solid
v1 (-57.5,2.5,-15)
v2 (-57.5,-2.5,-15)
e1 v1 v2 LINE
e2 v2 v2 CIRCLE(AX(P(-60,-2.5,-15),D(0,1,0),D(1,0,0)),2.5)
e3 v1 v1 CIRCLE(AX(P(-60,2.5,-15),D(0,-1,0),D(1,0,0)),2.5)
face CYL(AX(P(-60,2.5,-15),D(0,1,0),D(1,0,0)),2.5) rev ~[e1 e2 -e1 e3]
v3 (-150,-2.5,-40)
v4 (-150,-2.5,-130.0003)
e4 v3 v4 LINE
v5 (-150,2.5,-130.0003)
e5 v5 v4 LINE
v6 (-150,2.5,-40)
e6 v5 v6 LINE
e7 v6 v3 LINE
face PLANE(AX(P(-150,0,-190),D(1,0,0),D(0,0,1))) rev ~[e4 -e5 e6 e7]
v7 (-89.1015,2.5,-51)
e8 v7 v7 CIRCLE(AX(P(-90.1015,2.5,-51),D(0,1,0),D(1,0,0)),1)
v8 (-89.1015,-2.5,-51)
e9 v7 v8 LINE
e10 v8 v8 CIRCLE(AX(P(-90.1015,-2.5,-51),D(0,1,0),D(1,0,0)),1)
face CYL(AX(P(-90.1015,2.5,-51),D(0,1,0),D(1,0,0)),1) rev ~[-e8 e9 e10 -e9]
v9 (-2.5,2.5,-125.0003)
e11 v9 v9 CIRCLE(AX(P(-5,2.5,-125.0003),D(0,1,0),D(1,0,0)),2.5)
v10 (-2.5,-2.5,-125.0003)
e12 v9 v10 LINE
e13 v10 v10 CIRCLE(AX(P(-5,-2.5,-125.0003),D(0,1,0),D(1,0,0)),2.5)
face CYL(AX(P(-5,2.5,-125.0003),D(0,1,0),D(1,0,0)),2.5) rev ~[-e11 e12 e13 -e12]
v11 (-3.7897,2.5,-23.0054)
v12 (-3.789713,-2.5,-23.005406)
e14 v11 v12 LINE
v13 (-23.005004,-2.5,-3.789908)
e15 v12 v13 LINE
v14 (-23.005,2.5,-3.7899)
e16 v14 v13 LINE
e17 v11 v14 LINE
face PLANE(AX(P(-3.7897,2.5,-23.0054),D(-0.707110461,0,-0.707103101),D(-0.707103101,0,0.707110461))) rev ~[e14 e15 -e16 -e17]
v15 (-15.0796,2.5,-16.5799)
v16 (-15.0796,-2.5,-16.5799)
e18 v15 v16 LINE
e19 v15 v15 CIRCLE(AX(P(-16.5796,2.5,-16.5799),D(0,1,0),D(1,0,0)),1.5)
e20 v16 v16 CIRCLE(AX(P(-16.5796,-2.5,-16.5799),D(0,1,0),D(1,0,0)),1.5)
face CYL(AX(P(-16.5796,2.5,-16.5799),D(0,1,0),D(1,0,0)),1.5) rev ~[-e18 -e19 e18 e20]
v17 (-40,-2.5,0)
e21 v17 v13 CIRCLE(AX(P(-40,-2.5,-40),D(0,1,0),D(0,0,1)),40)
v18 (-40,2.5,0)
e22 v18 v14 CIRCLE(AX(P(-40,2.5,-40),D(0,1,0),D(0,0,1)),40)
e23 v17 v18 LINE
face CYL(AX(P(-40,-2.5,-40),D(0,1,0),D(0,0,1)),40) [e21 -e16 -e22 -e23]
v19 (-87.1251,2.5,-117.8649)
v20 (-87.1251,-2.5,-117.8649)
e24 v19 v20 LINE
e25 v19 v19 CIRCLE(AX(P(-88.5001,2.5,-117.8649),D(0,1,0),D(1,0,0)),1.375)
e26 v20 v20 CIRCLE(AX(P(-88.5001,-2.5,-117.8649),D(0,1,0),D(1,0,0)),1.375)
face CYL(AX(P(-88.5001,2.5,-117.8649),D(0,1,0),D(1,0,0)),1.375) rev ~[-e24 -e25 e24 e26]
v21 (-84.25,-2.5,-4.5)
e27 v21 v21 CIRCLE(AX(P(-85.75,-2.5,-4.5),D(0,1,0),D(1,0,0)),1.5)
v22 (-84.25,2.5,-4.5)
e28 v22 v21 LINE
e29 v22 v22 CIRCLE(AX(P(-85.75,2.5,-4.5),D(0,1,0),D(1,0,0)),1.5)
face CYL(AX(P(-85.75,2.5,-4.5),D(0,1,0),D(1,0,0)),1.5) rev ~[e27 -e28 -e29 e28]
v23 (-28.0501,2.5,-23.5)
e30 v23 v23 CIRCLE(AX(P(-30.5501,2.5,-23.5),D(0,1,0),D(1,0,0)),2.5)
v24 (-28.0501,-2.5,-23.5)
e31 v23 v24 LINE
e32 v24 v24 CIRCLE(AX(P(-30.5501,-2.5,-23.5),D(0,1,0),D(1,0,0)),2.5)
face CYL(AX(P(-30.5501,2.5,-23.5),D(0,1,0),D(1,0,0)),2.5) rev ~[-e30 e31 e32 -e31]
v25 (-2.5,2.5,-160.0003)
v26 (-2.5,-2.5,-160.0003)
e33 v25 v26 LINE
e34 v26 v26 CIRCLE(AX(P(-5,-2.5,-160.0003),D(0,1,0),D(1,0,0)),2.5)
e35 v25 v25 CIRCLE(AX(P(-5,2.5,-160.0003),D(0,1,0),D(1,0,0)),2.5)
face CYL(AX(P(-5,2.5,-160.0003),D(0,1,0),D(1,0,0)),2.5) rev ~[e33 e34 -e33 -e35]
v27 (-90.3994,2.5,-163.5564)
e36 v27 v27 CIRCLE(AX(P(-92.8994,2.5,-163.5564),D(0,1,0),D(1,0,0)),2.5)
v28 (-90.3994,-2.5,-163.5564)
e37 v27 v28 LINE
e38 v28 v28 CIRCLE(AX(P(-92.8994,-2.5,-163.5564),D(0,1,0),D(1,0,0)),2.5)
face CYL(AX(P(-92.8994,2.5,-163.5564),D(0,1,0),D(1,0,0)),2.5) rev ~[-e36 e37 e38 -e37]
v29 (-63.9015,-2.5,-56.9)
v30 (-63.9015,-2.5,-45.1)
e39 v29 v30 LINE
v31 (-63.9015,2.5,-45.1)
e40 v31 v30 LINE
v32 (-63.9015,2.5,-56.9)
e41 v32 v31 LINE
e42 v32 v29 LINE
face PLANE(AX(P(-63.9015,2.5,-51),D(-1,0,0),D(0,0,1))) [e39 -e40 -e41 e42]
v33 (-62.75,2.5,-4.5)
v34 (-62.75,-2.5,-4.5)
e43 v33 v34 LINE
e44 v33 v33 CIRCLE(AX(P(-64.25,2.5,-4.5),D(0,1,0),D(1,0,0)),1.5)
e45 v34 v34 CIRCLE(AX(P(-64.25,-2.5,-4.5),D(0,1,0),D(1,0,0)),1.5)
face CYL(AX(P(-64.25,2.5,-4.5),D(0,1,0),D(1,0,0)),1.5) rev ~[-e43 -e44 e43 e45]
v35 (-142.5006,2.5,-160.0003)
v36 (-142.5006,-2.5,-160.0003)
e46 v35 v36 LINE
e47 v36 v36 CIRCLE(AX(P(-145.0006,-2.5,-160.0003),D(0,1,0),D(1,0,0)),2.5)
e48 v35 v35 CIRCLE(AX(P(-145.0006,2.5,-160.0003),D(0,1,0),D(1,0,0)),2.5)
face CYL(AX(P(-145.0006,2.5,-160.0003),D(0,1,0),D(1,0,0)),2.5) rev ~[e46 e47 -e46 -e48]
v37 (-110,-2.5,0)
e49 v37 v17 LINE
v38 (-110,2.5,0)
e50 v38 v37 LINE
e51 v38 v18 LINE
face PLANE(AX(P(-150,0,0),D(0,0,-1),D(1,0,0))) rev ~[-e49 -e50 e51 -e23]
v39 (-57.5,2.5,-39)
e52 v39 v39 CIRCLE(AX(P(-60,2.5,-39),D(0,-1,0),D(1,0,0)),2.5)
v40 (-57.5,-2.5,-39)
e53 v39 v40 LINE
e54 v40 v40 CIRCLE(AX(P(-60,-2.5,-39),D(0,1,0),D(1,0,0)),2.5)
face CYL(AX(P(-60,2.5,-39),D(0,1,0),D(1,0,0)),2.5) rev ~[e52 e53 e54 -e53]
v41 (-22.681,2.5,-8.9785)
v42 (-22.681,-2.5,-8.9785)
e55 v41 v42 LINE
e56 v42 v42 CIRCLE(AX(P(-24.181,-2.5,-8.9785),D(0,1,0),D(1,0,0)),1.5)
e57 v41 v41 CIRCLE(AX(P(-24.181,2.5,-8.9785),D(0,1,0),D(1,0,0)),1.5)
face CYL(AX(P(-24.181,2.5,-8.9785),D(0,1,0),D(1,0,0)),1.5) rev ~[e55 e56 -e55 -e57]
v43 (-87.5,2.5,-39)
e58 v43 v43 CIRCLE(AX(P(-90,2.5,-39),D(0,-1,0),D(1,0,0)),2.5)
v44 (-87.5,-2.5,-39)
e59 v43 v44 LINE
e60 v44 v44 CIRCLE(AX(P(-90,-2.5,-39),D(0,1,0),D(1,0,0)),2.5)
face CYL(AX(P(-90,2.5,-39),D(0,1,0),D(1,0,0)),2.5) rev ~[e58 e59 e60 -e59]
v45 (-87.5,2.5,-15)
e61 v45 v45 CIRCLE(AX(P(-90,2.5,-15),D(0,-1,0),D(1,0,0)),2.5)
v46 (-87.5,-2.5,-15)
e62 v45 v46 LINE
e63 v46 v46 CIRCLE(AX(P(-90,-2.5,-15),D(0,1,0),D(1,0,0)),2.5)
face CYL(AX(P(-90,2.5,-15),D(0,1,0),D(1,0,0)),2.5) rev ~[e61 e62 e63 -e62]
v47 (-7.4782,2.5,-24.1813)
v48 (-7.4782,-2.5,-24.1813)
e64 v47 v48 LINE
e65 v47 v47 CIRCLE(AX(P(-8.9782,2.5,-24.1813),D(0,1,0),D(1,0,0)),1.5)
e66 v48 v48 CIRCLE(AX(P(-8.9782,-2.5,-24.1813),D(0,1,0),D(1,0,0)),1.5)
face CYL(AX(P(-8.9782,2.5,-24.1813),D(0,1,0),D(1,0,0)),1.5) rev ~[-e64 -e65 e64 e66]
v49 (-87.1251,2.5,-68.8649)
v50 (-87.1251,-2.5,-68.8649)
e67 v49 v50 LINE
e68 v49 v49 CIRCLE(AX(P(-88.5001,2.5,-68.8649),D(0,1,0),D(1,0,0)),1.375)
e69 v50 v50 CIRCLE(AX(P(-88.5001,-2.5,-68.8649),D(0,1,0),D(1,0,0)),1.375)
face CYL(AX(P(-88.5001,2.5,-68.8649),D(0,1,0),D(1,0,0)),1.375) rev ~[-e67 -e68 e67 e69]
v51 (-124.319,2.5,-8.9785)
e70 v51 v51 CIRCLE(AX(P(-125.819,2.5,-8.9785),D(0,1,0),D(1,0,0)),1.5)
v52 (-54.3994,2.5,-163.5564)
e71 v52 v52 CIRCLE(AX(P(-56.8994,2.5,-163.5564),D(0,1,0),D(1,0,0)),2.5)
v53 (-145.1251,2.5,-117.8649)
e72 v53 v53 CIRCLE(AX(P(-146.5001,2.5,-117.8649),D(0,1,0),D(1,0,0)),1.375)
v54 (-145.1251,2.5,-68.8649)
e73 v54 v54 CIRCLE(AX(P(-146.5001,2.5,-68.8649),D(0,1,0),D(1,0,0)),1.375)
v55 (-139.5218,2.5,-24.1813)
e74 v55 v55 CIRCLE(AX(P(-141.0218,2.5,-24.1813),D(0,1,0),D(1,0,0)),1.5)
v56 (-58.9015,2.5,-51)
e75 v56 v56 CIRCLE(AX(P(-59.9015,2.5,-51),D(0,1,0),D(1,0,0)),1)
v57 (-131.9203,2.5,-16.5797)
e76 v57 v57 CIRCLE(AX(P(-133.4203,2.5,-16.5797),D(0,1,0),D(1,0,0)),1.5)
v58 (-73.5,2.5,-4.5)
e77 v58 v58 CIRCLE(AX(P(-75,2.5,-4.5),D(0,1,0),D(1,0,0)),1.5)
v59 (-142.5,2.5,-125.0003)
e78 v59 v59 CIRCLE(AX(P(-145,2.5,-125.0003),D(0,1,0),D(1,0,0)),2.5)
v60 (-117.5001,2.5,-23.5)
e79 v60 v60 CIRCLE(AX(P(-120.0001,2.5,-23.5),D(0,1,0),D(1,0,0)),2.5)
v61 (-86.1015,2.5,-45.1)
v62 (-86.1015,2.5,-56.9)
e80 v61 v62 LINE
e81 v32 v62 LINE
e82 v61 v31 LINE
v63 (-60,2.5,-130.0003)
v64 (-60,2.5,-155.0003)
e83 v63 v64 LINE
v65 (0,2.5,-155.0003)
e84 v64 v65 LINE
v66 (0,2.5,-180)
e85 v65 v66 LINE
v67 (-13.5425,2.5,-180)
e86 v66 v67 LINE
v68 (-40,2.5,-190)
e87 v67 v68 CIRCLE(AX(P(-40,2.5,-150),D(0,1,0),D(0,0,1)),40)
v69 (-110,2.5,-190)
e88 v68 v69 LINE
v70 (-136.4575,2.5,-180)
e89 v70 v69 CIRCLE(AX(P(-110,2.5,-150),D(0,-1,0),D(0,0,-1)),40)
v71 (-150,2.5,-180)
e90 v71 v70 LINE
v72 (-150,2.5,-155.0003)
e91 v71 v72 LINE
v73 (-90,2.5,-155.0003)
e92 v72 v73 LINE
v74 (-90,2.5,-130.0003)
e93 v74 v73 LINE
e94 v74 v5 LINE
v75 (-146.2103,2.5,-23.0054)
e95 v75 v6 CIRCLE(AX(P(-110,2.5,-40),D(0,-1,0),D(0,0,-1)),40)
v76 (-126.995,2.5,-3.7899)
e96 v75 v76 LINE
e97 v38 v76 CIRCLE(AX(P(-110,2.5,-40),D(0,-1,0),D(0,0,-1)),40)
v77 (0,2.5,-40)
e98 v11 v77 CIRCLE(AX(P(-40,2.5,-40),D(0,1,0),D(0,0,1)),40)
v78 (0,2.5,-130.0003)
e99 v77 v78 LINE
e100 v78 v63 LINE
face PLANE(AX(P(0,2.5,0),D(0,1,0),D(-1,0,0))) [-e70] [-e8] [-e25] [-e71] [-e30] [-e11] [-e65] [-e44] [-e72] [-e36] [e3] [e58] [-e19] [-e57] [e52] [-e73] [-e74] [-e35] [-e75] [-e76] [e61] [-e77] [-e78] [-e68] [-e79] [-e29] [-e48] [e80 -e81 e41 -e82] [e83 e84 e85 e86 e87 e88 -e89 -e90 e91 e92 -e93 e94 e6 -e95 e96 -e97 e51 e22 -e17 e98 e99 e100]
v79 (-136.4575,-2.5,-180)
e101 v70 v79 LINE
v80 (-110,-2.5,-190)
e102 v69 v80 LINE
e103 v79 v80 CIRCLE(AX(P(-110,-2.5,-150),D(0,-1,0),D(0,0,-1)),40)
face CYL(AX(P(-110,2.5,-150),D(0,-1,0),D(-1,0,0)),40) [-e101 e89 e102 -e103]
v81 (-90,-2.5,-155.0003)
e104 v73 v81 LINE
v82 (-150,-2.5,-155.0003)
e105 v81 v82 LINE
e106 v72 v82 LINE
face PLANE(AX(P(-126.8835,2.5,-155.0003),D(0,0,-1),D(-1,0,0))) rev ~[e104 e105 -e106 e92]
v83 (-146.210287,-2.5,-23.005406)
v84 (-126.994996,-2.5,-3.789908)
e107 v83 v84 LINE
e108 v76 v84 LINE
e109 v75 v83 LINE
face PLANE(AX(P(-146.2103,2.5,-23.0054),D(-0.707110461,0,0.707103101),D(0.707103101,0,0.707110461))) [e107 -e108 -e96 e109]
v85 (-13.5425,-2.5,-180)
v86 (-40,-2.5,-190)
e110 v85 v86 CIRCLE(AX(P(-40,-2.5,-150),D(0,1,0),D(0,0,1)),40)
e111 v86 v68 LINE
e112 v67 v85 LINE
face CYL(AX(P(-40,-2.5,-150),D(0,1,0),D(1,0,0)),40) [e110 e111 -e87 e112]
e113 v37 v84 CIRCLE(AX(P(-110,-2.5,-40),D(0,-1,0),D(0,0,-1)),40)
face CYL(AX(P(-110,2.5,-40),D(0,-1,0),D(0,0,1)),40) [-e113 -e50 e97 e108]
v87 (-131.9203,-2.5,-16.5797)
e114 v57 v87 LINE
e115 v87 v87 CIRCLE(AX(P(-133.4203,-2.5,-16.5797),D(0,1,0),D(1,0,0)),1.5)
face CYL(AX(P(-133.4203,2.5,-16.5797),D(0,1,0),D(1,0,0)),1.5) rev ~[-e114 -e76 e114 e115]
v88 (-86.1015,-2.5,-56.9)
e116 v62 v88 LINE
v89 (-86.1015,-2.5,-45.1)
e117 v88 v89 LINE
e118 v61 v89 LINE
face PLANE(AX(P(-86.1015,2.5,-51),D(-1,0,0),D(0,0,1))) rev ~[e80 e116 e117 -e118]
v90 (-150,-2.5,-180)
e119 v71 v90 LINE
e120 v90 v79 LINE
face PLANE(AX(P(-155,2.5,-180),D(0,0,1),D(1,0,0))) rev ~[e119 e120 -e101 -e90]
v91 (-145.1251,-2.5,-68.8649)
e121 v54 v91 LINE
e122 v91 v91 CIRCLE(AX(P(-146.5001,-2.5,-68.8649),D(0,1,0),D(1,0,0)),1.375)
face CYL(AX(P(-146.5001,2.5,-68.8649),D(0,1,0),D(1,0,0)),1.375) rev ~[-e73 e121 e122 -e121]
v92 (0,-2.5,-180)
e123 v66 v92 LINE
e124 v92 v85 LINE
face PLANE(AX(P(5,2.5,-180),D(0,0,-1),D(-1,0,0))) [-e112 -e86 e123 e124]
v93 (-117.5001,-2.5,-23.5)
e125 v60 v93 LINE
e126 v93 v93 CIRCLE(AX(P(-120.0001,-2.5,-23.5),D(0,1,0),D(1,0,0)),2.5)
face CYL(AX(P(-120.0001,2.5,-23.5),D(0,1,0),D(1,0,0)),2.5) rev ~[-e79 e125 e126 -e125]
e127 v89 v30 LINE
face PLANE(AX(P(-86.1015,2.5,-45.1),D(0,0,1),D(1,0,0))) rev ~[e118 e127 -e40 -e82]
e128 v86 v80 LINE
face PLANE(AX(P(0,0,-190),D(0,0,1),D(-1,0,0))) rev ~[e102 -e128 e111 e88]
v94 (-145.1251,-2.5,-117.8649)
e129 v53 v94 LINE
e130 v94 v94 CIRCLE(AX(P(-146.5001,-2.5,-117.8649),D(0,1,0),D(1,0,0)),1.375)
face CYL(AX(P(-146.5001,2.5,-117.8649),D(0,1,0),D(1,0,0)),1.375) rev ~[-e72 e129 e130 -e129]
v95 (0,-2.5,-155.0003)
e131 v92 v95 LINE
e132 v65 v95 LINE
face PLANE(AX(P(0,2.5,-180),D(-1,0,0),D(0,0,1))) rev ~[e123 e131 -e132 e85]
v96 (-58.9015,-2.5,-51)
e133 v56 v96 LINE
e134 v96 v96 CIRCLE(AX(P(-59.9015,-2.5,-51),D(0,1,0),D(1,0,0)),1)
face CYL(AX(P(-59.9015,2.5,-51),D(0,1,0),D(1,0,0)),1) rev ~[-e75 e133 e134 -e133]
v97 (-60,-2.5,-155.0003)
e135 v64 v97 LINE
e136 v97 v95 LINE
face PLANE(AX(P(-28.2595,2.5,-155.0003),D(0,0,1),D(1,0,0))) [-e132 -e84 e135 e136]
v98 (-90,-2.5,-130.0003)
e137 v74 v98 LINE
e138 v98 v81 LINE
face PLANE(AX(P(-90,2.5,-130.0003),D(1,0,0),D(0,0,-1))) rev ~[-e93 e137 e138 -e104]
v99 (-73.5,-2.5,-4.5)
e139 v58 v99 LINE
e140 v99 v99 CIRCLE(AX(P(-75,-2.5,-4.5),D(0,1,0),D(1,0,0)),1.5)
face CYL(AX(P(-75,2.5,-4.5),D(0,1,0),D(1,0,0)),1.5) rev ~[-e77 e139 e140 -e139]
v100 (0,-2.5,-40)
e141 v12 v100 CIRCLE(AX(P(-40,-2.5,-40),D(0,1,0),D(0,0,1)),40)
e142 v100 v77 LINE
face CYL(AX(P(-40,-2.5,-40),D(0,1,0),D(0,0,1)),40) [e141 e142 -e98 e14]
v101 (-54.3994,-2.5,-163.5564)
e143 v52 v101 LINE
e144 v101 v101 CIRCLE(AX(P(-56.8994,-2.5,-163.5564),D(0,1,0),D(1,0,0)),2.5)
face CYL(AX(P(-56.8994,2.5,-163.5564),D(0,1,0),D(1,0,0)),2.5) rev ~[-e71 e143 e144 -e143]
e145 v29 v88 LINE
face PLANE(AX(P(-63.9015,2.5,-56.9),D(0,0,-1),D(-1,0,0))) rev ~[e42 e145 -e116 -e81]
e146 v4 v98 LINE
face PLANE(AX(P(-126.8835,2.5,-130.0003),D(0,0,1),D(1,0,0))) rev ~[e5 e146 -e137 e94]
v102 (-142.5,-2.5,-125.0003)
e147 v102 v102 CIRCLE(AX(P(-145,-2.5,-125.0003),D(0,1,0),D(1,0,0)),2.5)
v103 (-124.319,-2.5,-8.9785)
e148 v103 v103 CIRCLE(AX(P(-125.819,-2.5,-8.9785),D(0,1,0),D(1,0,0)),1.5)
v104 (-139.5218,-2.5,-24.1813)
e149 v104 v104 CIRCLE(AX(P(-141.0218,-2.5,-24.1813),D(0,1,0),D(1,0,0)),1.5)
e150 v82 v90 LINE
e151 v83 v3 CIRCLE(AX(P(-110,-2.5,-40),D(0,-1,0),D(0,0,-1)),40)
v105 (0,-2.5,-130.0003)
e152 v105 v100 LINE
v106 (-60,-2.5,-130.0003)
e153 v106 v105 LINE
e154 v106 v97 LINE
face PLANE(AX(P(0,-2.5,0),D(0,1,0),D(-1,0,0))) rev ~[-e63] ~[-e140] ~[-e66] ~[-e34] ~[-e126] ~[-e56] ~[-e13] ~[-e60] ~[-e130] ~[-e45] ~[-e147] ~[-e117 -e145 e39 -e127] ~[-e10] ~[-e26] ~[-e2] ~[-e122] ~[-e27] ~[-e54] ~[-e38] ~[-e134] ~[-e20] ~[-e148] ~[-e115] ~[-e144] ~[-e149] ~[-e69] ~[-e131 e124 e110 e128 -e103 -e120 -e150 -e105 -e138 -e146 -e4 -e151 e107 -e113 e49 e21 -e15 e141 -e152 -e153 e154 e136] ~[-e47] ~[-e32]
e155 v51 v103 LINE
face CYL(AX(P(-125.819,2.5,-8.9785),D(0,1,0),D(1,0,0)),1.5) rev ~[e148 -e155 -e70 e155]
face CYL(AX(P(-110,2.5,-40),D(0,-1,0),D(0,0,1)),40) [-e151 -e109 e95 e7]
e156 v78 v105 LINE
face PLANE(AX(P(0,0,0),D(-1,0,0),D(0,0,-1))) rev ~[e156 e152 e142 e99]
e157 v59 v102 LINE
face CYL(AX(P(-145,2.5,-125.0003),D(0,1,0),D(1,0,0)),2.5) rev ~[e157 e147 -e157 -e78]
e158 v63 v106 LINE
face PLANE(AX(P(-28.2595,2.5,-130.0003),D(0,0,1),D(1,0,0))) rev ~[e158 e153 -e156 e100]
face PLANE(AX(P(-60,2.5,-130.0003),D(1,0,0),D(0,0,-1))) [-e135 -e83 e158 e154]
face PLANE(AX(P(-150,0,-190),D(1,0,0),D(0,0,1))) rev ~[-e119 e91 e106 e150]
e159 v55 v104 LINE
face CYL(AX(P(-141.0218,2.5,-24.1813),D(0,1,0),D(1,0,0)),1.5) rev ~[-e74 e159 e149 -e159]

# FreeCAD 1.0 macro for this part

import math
import FreeCAD as App
import Part
import Sketcher
from FreeCAD import Vector


def edges_at(feature, points):
    """Names of the edges that pass closest to the given points."""
    edges = feature.Shape.Edges
    near = lambda p: min(range(len(edges)), key=lambda i: edges[i].distToShape(Part.Vertex(*p))[0])
    return sorted({f"Edge{near(p) + 1}" for p in points})

doc = App.newDocument("Part")
body = doc.addObject("PartDesign::Body", "Body")

sketch1 = doc.addObject("Sketcher::SketchObject", "Sketch")
body.addObject(sketch1)
sketch1.AttachmentSupport = (doc.XZ_Plane, [""])
sketch1.MapMode = "FlatFace"
sketch1.addGeometry(Part.LineSegment(Vector(-150, 0, 0), Vector(0, 0, 0)), False)
sketch1.addGeometry(Part.LineSegment(Vector(0, 0, 0), Vector(0, -190, 0)), False)
sketch1.addGeometry(Part.LineSegment(Vector(0, -190, 0), Vector(-150, -190, 0)), False)
sketch1.addGeometry(Part.LineSegment(Vector(-150, -190, 0), Vector(-150, 0, 0)), False)
sketch1.addConstraint(Sketcher.Constraint("Coincident", 0, 2, 1, 1))
sketch1.addConstraint(Sketcher.Constraint("Coincident", 1, 2, 2, 1))
sketch1.addConstraint(Sketcher.Constraint("Coincident", 2, 2, 3, 1))
sketch1.addConstraint(Sketcher.Constraint("Coincident", 3, 2, 0, 1))
sketch1.addConstraint(Sketcher.Constraint("Horizontal", 0))
sketch1.addConstraint(Sketcher.Constraint("Vertical", 1))
sketch1.addConstraint(Sketcher.Constraint("Horizontal", 2))
sketch1.addConstraint(Sketcher.Constraint("Vertical", 3))
sketch1.addConstraint(Sketcher.Constraint("Coincident", 0, 2, -1, 1))
sketch1.addConstraint(Sketcher.Constraint("DistanceX", 0, 1, 0, 2, 150.0))
sketch1.addConstraint(Sketcher.Constraint("DistanceY", 1, 2, 1, 1, 190.0))
pad1 = doc.addObject("PartDesign::Pad", "Pad")
body.addObject(pad1)
pad1.Profile = sketch1
pad1.Length = 5
pad1.Midplane = True
doc.recompute()

fillet = doc.addObject("PartDesign::Fillet", "Fillet")
body.addObject(fillet)
fillet.Base = (pad1, edges_at(pad1, [(0, 0, 0)]))
fillet.Radius = 40
doc.recompute()

fillet2 = doc.addObject("PartDesign::Fillet", "Fillet001")
body.addObject(fillet2)
fillet2.Base = (fillet, edges_at(fillet, [(-150, 0, 0), (0, 0, -190), (-150, 0, -190)]))
fillet2.Radius = 40

sketch2 = doc.addObject("Sketcher::SketchObject", "Sketch001")
body.addObject(sketch2)
sketch2.AttachmentSupport = (doc.XZ_Plane, [""])
sketch2.MapMode = "FlatFace"
sketch2.AttachmentOffset = App.Placement(Vector(0, 0, -2.5), App.Rotation())
sketch2.addGeometry(Part.Circle(Vector(-120, -23.5, 0), Vector(0, 0, 1), 2.5), False)
sketch2.addGeometry(Part.Circle(Vector(-30.6, -23.5, 0), Vector(0, 0, 1), 2.5), False)
sketch2.addGeometry(Part.Circle(Vector(-92.9, -163.6, 0), Vector(0, 0, 1), 2.5), False)
sketch2.addGeometry(Part.Circle(Vector(-56.9, -163.6, 0), Vector(0, 0, 1), 2.5), False)
sketch2.addConstraint(Sketcher.Constraint("Equal", 0, 1))
sketch2.addConstraint(Sketcher.Constraint("Equal", 1, 2))
sketch2.addConstraint(Sketcher.Constraint("Equal", 2, 3))
sketch2.addConstraint(Sketcher.Constraint("Horizontal", 0, 3, 1, 3))
sketch2.addConstraint(Sketcher.Constraint("Horizontal", 2, 3, 3, 3))
sketch2.addConstraint(Sketcher.Constraint("Diameter", 0, 5.0))
sketch2.addConstraint(Sketcher.Constraint("DistanceX", 0, 3, -1, 1, 120.0))
sketch2.addConstraint(Sketcher.Constraint("DistanceX", 2, 3, 3, 3, 36.0))
sketch2.addConstraint(Sketcher.Constraint("DistanceY", 0, 3, -1, 1, 23.5))
sketch2.addConstraint(Sketcher.Constraint("DistanceX", 1, 3, -1, 1, 30.55))
sketch2.addConstraint(Sketcher.Constraint("DistanceX", 2, 3, -1, 1, 92.8994))
sketch2.addConstraint(Sketcher.Constraint("DistanceY", 2, 3, -1, 1, 163.5564))
pocket1 = doc.addObject("PartDesign::Pocket", "Pocket")
body.addObject(pocket1)
pocket1.Profile = sketch2
pocket1.Type = "ThroughAll"
pocket1.Reversed = True

sketch3 = doc.addObject("Sketcher::SketchObject", "Sketch002")
body.addObject(sketch3)
sketch3.AttachmentSupport = (doc.XZ_Plane, [""])
sketch3.MapMode = "FlatFace"
sketch3.AttachmentOffset = App.Placement(Vector(0, 0, -2.5), App.Rotation())
sketch3.addGeometry(Part.LineSegment(Vector(-150, -175, 0), Vector(-150, -150, 0)), False)
sketch3.addGeometry(Part.ArcOfCircle(Part.Circle(Vector(-110, -150, 0), Vector(0, 0, 1), 40), math.radians(180), math.radians(229)), False)
sketch3.addGeometry(Part.LineSegment(Vector(-136, -180, 0), Vector(-155, -180, 0)), False)
sketch3.addGeometry(Part.LineSegment(Vector(-155, -180, 0), Vector(-155, -175, 0)), False)
sketch3.addGeometry(Part.LineSegment(Vector(-155, -175, 0), Vector(-150, -175, 0)), False)
sketch3.addGeometry(Part.LineSegment(Vector(-150, -105, 0), Vector(-150, -110, 0)), False)
sketch3.addGeometry(Part.LineSegment(Vector(-150, -110, 0), Vector(-155, -110, 0)), False)
sketch3.addGeometry(Part.LineSegment(Vector(-155, -110, 0), Vector(-155, -105, 0)), False)
sketch3.addGeometry(Part.LineSegment(Vector(-155, -105, 0), Vector(-150, -105, 0)), False)
sketch3.addGeometry(Part.LineSegment(Vector(0, -110, 0), Vector(0, -105, 0)), False)
sketch3.addGeometry(Part.LineSegment(Vector(0, -105, 0), Vector(5, -105, 0)), False)
sketch3.addGeometry(Part.LineSegment(Vector(5, -105, 0), Vector(5, -110, 0)), False)
sketch3.addGeometry(Part.LineSegment(Vector(5, -110, 0), Vector(0, -110, 0)), False)
sketch3.addGeometry(Part.LineSegment(Vector(0, -150, 0), Vector(0, -175, 0)), False)
sketch3.addGeometry(Part.LineSegment(Vector(0, -175, 0), Vector(5, -175, 0)), False)
sketch3.addGeometry(Part.LineSegment(Vector(5, -175, 0), Vector(5, -180, 0)), False)
sketch3.addGeometry(Part.LineSegment(Vector(5, -180, 0), Vector(-14, -180, 0)), False)
sketch3.addGeometry(Part.ArcOfCircle(Part.Circle(Vector(-40, -150, 0), Vector(0, 0, 1), 40), math.radians(-49), math.radians(0)), False)
sketch3.addConstraint(Sketcher.Constraint("Tangent", 0, 2, 1, 1))
sketch3.addConstraint(Sketcher.Constraint("Coincident", 1, 2, 2, 1))
sketch3.addConstraint(Sketcher.Constraint("Coincident", 2, 2, 3, 1))
sketch3.addConstraint(Sketcher.Constraint("Coincident", 3, 2, 4, 1))
sketch3.addConstraint(Sketcher.Constraint("Coincident", 4, 2, 0, 1))
sketch3.addConstraint(Sketcher.Constraint("Coincident", 5, 2, 6, 1))
sketch3.addConstraint(Sketcher.Constraint("Coincident", 6, 2, 7, 1))
sketch3.addConstraint(Sketcher.Constraint("Coincident", 7, 2, 8, 1))
sketch3.addConstraint(Sketcher.Constraint("Coincident", 8, 2, 5, 1))
sketch3.addConstraint(Sketcher.Constraint("Coincident", 9, 2, 10, 1))
sketch3.addConstraint(Sketcher.Constraint("Coincident", 10, 2, 11, 1))
sketch3.addConstraint(Sketcher.Constraint("Coincident", 11, 2, 12, 1))
sketch3.addConstraint(Sketcher.Constraint("Coincident", 12, 2, 9, 1))
sketch3.addConstraint(Sketcher.Constraint("Coincident", 13, 2, 14, 1))
sketch3.addConstraint(Sketcher.Constraint("Coincident", 14, 2, 15, 1))
sketch3.addConstraint(Sketcher.Constraint("Coincident", 15, 2, 16, 1))
sketch3.addConstraint(Sketcher.Constraint("Coincident", 16, 2, 17, 1))
sketch3.addConstraint(Sketcher.Constraint("Tangent", 17, 2, 13, 1))
sketch3.addConstraint(Sketcher.Constraint("Vertical", 0))
sketch3.addConstraint(Sketcher.Constraint("Horizontal", 2))
sketch3.addConstraint(Sketcher.Constraint("Vertical", 3))
sketch3.addConstraint(Sketcher.Constraint("Horizontal", 4))
sketch3.addConstraint(Sketcher.Constraint("Vertical", 5))
sketch3.addConstraint(Sketcher.Constraint("Horizontal", 6))
sketch3.addConstraint(Sketcher.Constraint("Vertical", 7))
sketch3.addConstraint(Sketcher.Constraint("Horizontal", 8))
sketch3.addConstraint(Sketcher.Constraint("Vertical", 9))
sketch3.addConstraint(Sketcher.Constraint("Horizontal", 10))
sketch3.addConstraint(Sketcher.Constraint("Vertical", 11))
sketch3.addConstraint(Sketcher.Constraint("Horizontal", 12))
sketch3.addConstraint(Sketcher.Constraint("Vertical", 13))
sketch3.addConstraint(Sketcher.Constraint("Horizontal", 14))
sketch3.addConstraint(Sketcher.Constraint("Vertical", 15))
sketch3.addConstraint(Sketcher.Constraint("Horizontal", 16))
sketch3.addConstraint(Sketcher.Constraint("Equal", 1, 17))
sketch3.addConstraint(Sketcher.Constraint("PointOnObject", 9, 2, -2))
sketch3.addConstraint(Sketcher.Constraint("PointOnObject", 13, 2, -2))
sketch3.addConstraint(Sketcher.Constraint("Horizontal", 1, 3, 17, 3))
sketch3.addConstraint(Sketcher.Constraint("Horizontal", 8, 2, 9, 2))
sketch3.addConstraint(Sketcher.Constraint("Horizontal", 6, 2, 11, 2))
sketch3.addConstraint(Sketcher.Constraint("Horizontal", 4, 2, 13, 2))
sketch3.addConstraint(Sketcher.Constraint("Horizontal", 2, 2, 15, 2))
sketch3.addConstraint(Sketcher.Constraint("Vertical", 4, 2, 5, 2))
sketch3.addConstraint(Sketcher.Constraint("Vertical", 3, 2, 6, 2))
sketch3.addConstraint(Sketcher.Constraint("Vertical", 11, 2, 14, 2))
sketch3.addConstraint(Sketcher.Constraint("Equal", 8, 10))
sketch3.addConstraint(Sketcher.Constraint("Equal", 14, 3))
sketch3.addConstraint(Sketcher.Constraint("Equal", 3, 5))
sketch3.addConstraint(Sketcher.Constraint("DistanceX", 4, 1, 4, 2, 5.0))
sketch3.addConstraint(Sketcher.Constraint("Radius", 1, 40.0))
sketch3.addConstraint(Sketcher.Constraint("DistanceY", 0, 1, 0, 2, 25.0))
sketch3.addConstraint(Sketcher.Constraint("DistanceX", 1, 3, -1, 1, 110.0))
sketch3.addConstraint(Sketcher.Constraint("DistanceY", 1, 3, -1, 1, 150.0))
sketch3.addConstraint(Sketcher.Constraint("DistanceY", 5, 2, -1, 1, 110.0))
pad2 = doc.addObject("PartDesign::Pad", "Pad001")
body.addObject(pad2)
pad2.Profile = sketch3
pad2.Length = 5

sketch4 = doc.addObject("Sketcher::SketchObject", "Sketch003")
body.addObject(sketch4)
sketch4.AttachmentSupport = (doc.XZ_Plane, [""])
sketch4.MapMode = "FlatFace"
sketch4.AttachmentOffset = App.Placement(Vector(0, 0, -2.5), App.Rotation())
sketch4.addGeometry(Part.LineSegment(Vector(-150, -155, 0), Vector(-150, -130, 0)), False)
sketch4.addGeometry(Part.LineSegment(Vector(-150, -130, 0), Vector(-90, -130, 0)), False)
sketch4.addGeometry(Part.LineSegment(Vector(-90, -130, 0), Vector(-90, -155, 0)), False)
sketch4.addGeometry(Part.LineSegment(Vector(-90, -155, 0), Vector(-150, -155, 0)), False)
sketch4.addGeometry(Part.LineSegment(Vector(0, -155, 0), Vector(-60, -155, 0)), False)
sketch4.addGeometry(Part.LineSegment(Vector(-60, -155, 0), Vector(-60, -130, 0)), False)
sketch4.addGeometry(Part.LineSegment(Vector(-60, -130, 0), Vector(0, -130, 0)), False)
sketch4.addGeometry(Part.LineSegment(Vector(0, -130, 0), Vector(0, -155, 0)), False)
sketch4.addConstraint(Sketcher.Constraint("Coincident", 0, 2, 1, 1))
sketch4.addConstraint(Sketcher.Constraint("Coincident", 1, 2, 2, 1))
sketch4.addConstraint(Sketcher.Constraint("Coincident", 2, 2, 3, 1))
sketch4.addConstraint(Sketcher.Constraint("Coincident", 3, 2, 0, 1))
sketch4.addConstraint(Sketcher.Constraint("Coincident", 4, 2, 5, 1))
sketch4.addConstraint(Sketcher.Constraint("Coincident", 5, 2, 6, 1))
sketch4.addConstraint(Sketcher.Constraint("Coincident", 6, 2, 7, 1))
sketch4.addConstraint(Sketcher.Constraint("Coincident", 7, 2, 4, 1))
sketch4.addConstraint(Sketcher.Constraint("Vertical", 0))
sketch4.addConstraint(Sketcher.Constraint("Horizontal", 1))
sketch4.addConstraint(Sketcher.Constraint("Vertical", 2))
sketch4.addConstraint(Sketcher.Constraint("Horizontal", 3))
sketch4.addConstraint(Sketcher.Constraint("Horizontal", 4))
sketch4.addConstraint(Sketcher.Constraint("Vertical", 5))
sketch4.addConstraint(Sketcher.Constraint("Horizontal", 6))
sketch4.addConstraint(Sketcher.Constraint("Vertical", 7))
sketch4.addConstraint(Sketcher.Constraint("PointOnObject", 6, 2, -2))
sketch4.addConstraint(Sketcher.Constraint("Horizontal", 3, 2, 4, 2))
sketch4.addConstraint(Sketcher.Constraint("Horizontal", 1, 2, 5, 2))
sketch4.addConstraint(Sketcher.Constraint("Equal", 3, 4))
sketch4.addConstraint(Sketcher.Constraint("DistanceX", 1, 1, 1, 2, 60.0))
sketch4.addConstraint(Sketcher.Constraint("DistanceY", 0, 1, 0, 2, 25.0))
sketch4.addConstraint(Sketcher.Constraint("DistanceX", 0, 2, -1, 1, 150.0))
sketch4.addConstraint(Sketcher.Constraint("DistanceY", 0, 2, -1, 1, 130.0003))
pocket2 = doc.addObject("PartDesign::Pocket", "Pocket001")
body.addObject(pocket2)
pocket2.Profile = sketch4
pocket2.Type = "ThroughAll"
pocket2.Reversed = True

sketch5 = doc.addObject("Sketcher::SketchObject", "Sketch004")
body.addObject(sketch5)
sketch5.AttachmentSupport = (doc.XZ_Plane, [""])
sketch5.MapMode = "FlatFace"
sketch5.AttachmentOffset = App.Placement(Vector(0, 0, -2.5), App.Rotation())
sketch5.addGeometry(Part.Circle(Vector(-5, -125, 0), Vector(0, 0, 1), 2.5), False)
sketch5.addGeometry(Part.Circle(Vector(-145, -160, 0), Vector(0, 0, 1), 2.5), False)
sketch5.addGeometry(Part.Circle(Vector(-145, -125, 0), Vector(0, 0, 1), 2.5), False)
sketch5.addGeometry(Part.Circle(Vector(-5, -160, 0), Vector(0, 0, 1), 2.5), False)
sketch5.addConstraint(Sketcher.Constraint("Equal", 0, 1))
sketch5.addConstraint(Sketcher.Constraint("Equal", 1, 2))
sketch5.addConstraint(Sketcher.Constraint("Equal", 2, 3))
sketch5.addConstraint(Sketcher.Constraint("Horizontal", 0, 3, 2, 3))
sketch5.addConstraint(Sketcher.Constraint("Horizontal", 1, 3, 3, 3))
sketch5.addConstraint(Sketcher.Constraint("Vertical", 0, 3, 3, 3))
sketch5.addConstraint(Sketcher.Constraint("Diameter", 0, 5.0))
sketch5.addConstraint(Sketcher.Constraint("DistanceX", 0, 3, -1, 1, 5.0))
sketch5.addConstraint(Sketcher.Constraint("DistanceX", 2, 3, -1, 1, 145.0))
sketch5.addConstraint(Sketcher.Constraint("DistanceY", 1, 3, 0, 3, 35.0))
sketch5.addConstraint(Sketcher.Constraint("DistanceY", 0, 3, -1, 1, 125.0003))
sketch5.addConstraint(Sketcher.Constraint("DistanceX", 1, 3, -1, 1, 145.0006))
pocket3 = doc.addObject("PartDesign::Pocket", "Pocket002")
body.addObject(pocket3)
pocket3.Profile = sketch5
pocket3.Type = "ThroughAll"
pocket3.Reversed = True

sketch6 = doc.addObject("Sketcher::SketchObject", "Sketch005")
body.addObject(sketch6)
sketch6.AttachmentSupport = (doc.XZ_Plane, [""])
sketch6.MapMode = "FlatFace"
sketch6.AttachmentOffset = App.Placement(Vector(0, 0, -2.5), App.Rotation())
sketch6.addGeometry(Part.LineSegment(Vector(5, -105, 0), Vector(5, -180, 0)), False)
sketch6.addGeometry(Part.LineSegment(Vector(5, -180, 0), Vector(0, -180, 0)), False)
sketch6.addGeometry(Part.LineSegment(Vector(0, -180, 0), Vector(0, -105, 0)), False)
sketch6.addGeometry(Part.LineSegment(Vector(0, -105, 0), Vector(5, -105, 0)), False)
sketch6.addGeometry(Part.LineSegment(Vector(-150, -105, 0), Vector(-150, -180, 0)), False)
sketch6.addGeometry(Part.LineSegment(Vector(-150, -180, 0), Vector(-155, -180, 0)), False)
sketch6.addGeometry(Part.LineSegment(Vector(-155, -180, 0), Vector(-155, -105, 0)), False)
sketch6.addGeometry(Part.LineSegment(Vector(-155, -105, 0), Vector(-150, -105, 0)), False)
sketch6.addConstraint(Sketcher.Constraint("Coincident", 0, 2, 1, 1))
sketch6.addConstraint(Sketcher.Constraint("Coincident", 1, 2, 2, 1))
sketch6.addConstraint(Sketcher.Constraint("Coincident", 2, 2, 3, 1))
sketch6.addConstraint(Sketcher.Constraint("Coincident", 3, 2, 0, 1))
sketch6.addConstraint(Sketcher.Constraint("Coincident", 4, 2, 5, 1))
sketch6.addConstraint(Sketcher.Constraint("Coincident", 5, 2, 6, 1))
sketch6.addConstraint(Sketcher.Constraint("Coincident", 6, 2, 7, 1))
sketch6.addConstraint(Sketcher.Constraint("Coincident", 7, 2, 4, 1))
sketch6.addConstraint(Sketcher.Constraint("Vertical", 0))
sketch6.addConstraint(Sketcher.Constraint("Horizontal", 1))
sketch6.addConstraint(Sketcher.Constraint("Vertical", 2))
sketch6.addConstraint(Sketcher.Constraint("Horizontal", 3))
sketch6.addConstraint(Sketcher.Constraint("Vertical", 4))
sketch6.addConstraint(Sketcher.Constraint("Horizontal", 5))
sketch6.addConstraint(Sketcher.Constraint("Vertical", 6))
sketch6.addConstraint(Sketcher.Constraint("Horizontal", 7))
sketch6.addConstraint(Sketcher.Constraint("PointOnObject", 1, 2, -2))
sketch6.addConstraint(Sketcher.Constraint("Horizontal", 1, 2, 4, 2))
sketch6.addConstraint(Sketcher.Constraint("Horizontal", 3, 2, 6, 2))
sketch6.addConstraint(Sketcher.Constraint("Equal", 3, 5))
sketch6.addConstraint(Sketcher.Constraint("DistanceX", 1, 2, 1, 1, 5.0))
sketch6.addConstraint(Sketcher.Constraint("DistanceY", 0, 2, -1, 1, 180.0))
sketch6.addConstraint(Sketcher.Constraint("DistanceX", 4, 2, -1, 1, 150.0))
sketch6.addConstraint(Sketcher.Constraint("DistanceY", 0, 2, 0, 1, 75.102))
pocket4 = doc.addObject("PartDesign::Pocket", "Pocket003")
body.addObject(pocket4)
pocket4.Profile = sketch6
pocket4.Type = "ThroughAll"
pocket4.Reversed = True

sketch7 = doc.addObject("Sketcher::SketchObject", "Sketch006")
body.addObject(sketch7)
sketch7.AttachmentSupport = (doc.XZ_Plane, [""])
sketch7.MapMode = "FlatFace"
sketch7.AttachmentOffset = App.Placement(Vector(0, 0, -2.5), App.Rotation())
sketch7.addGeometry(Part.Circle(Vector(-146.5, -117.9, 0), Vector(0, 0, 1), 1.4), False)
sketch7.addGeometry(Part.Circle(Vector(-88.5, -117.9, 0), Vector(0, 0, 1), 1.4), False)
sketch7.addGeometry(Part.Circle(Vector(-88.5, -68.9, 0), Vector(0, 0, 1), 1.4), False)
sketch7.addGeometry(Part.Circle(Vector(-146.5, -68.9, 0), Vector(0, 0, 1), 1.4), False)
sketch7.addConstraint(Sketcher.Constraint("Equal", 0, 1))
sketch7.addConstraint(Sketcher.Constraint("Equal", 1, 2))
sketch7.addConstraint(Sketcher.Constraint("Equal", 2, 3))
sketch7.addConstraint(Sketcher.Constraint("Horizontal", 0, 3, 1, 3))
sketch7.addConstraint(Sketcher.Constraint("Horizontal", 2, 3, 3, 3))
sketch7.addConstraint(Sketcher.Constraint("Vertical", 1, 3, 2, 3))
sketch7.addConstraint(Sketcher.Constraint("Vertical", 0, 3, 3, 3))
sketch7.addConstraint(Sketcher.Constraint("Diameter", 0, 2.75))
sketch7.addConstraint(Sketcher.Constraint("DistanceX", 0, 3, 1, 3, 58.0))
sketch7.addConstraint(Sketcher.Constraint("DistanceY", 1, 3, 2, 3, 49.0))
sketch7.addConstraint(Sketcher.Constraint("DistanceX", 0, 3, -1, 1, 146.5))
sketch7.addConstraint(Sketcher.Constraint("DistanceY", 0, 3, -1, 1, 117.865))
pocket5 = doc.addObject("PartDesign::Pocket", "Pocket004")
body.addObject(pocket5)
pocket5.Profile = sketch7
pocket5.Type = "ThroughAll"
pocket5.Reversed = True

sketch8 = doc.addObject("Sketcher::SketchObject", "Sketch007")
body.addObject(sketch8)
sketch8.AttachmentSupport = (doc.XZ_Plane, [""])
sketch8.MapMode = "FlatFace"
sketch8.AttachmentOffset = App.Placement(Vector(0, 0, -2.5), App.Rotation())
sketch8.addGeometry(Part.Circle(Vector(-60, -39, 0), Vector(0, 0, 1), 2.5), False)
sketch8.addGeometry(Part.Circle(Vector(-90, -39, 0), Vector(0, 0, 1), 2.5), False)
sketch8.addGeometry(Part.Circle(Vector(-60, -15, 0), Vector(0, 0, 1), 2.5), False)
sketch8.addGeometry(Part.Circle(Vector(-90, -15, 0), Vector(0, 0, 1), 2.5), False)
sketch8.addConstraint(Sketcher.Constraint("Equal", 0, 1))
sketch8.addConstraint(Sketcher.Constraint("Equal", 1, 2))
sketch8.addConstraint(Sketcher.Constraint("Equal", 2, 3))
sketch8.addConstraint(Sketcher.Constraint("Horizontal", 0, 3, 1, 3))
sketch8.addConstraint(Sketcher.Constraint("Horizontal", 2, 3, 3, 3))
sketch8.addConstraint(Sketcher.Constraint("Vertical", 0, 3, 2, 3))
sketch8.addConstraint(Sketcher.Constraint("Vertical", 1, 3, 3, 3))
sketch8.addConstraint(Sketcher.Constraint("Diameter", 0, 5.0))
sketch8.addConstraint(Sketcher.Constraint("DistanceX", 0, 3, -1, 1, 60.0))
sketch8.addConstraint(Sketcher.Constraint("DistanceY", 0, 3, -1, 1, 39.0))
sketch8.addConstraint(Sketcher.Constraint("DistanceX", 1, 3, -1, 1, 90.0))
sketch8.addConstraint(Sketcher.Constraint("DistanceY", 2, 3, -1, 1, 15.0))
pocket6 = doc.addObject("PartDesign::Pocket", "Pocket005")
body.addObject(pocket6)
pocket6.Profile = sketch8
pocket6.Type = "ThroughAll"
pocket6.Reversed = True

sketch9 = doc.addObject("Sketcher::SketchObject", "Sketch008")
body.addObject(sketch9)
sketch9.AttachmentSupport = (doc.XZ_Plane, [""])
sketch9.MapMode = "FlatFace"
sketch9.AttachmentOffset = App.Placement(Vector(0, 0, -2.5), App.Rotation())
sketch9.addGeometry(Part.LineSegment(Vector(-127, -4, 0), Vector(-146, -23, 0)), False)
sketch9.addGeometry(Part.LineSegment(Vector(-146, -23, 0), Vector(-146, -4, 0)), False)
sketch9.addGeometry(Part.LineSegment(Vector(-146, -4, 0), Vector(-127, -4, 0)), False)
sketch9.addGeometry(Part.LineSegment(Vector(-4, -23, 0), Vector(-23, -4, 0)), False)
sketch9.addGeometry(Part.LineSegment(Vector(-23, -4, 0), Vector(-4, -4, 0)), False)
sketch9.addGeometry(Part.LineSegment(Vector(-4, -4, 0), Vector(-4, -23, 0)), False)
sketch9.addConstraint(Sketcher.Constraint("Coincident", 0, 2, 1, 1))
sketch9.addConstraint(Sketcher.Constraint("Coincident", 1, 2, 2, 1))
sketch9.addConstraint(Sketcher.Constraint("Coincident", 2, 2, 0, 1))
sketch9.addConstraint(Sketcher.Constraint("Coincident", 3, 2, 4, 1))
sketch9.addConstraint(Sketcher.Constraint("Coincident", 4, 2, 5, 1))
sketch9.addConstraint(Sketcher.Constraint("Coincident", 5, 2, 3, 1))
sketch9.addConstraint(Sketcher.Constraint("Vertical", 1))
sketch9.addConstraint(Sketcher.Constraint("Horizontal", 2))
sketch9.addConstraint(Sketcher.Constraint("Horizontal", 4))
sketch9.addConstraint(Sketcher.Constraint("Vertical", 5))
sketch9.addConstraint(Sketcher.Constraint("Perpendicular", 0, 3))
sketch9.addConstraint(Sketcher.Constraint("Horizontal", 2, 2, 3, 2))
sketch9.addConstraint(Sketcher.Constraint("Horizontal", 0, 2, 5, 2))
sketch9.addConstraint(Sketcher.Constraint("Equal", 2, 4))
sketch9.addConstraint(Sketcher.Constraint("DistanceY", 1, 2, -1, 1, 3.79))
sketch9.addConstraint(Sketcher.Constraint("DistanceX", 2, 2, 3, 2, 103.99))
sketch9.addConstraint(Sketcher.Constraint("DistanceX", 2, 1, 2, 2, 19.2153))
sketch9.addConstraint(Sketcher.Constraint("DistanceX", 2, 2, -1, 1, 126.995))
pocket7 = doc.addObject("PartDesign::Pocket", "Pocket006")
body.addObject(pocket7)
pocket7.Profile = sketch9
pocket7.Type = "ThroughAll"
pocket7.Reversed = True

sketch10 = doc.addObject("Sketcher::SketchObject", "Sketch009")
body.addObject(sketch10)
sketch10.AttachmentSupport = (doc.XZ_Plane, [""])
sketch10.MapMode = "FlatFace"
sketch10.AttachmentOffset = App.Placement(Vector(0, 0, -2.5), App.Rotation())
sketch10.addGeometry(Part.Circle(Vector(-85.8, -4.5, 0), Vector(0, 0, 1), 1.5), False)
sketch10.addGeometry(Part.Circle(Vector(-75, -4.5, 0), Vector(0, 0, 1), 1.5), False)
sketch10.addGeometry(Part.Circle(Vector(-64.2, -4.5, 0), Vector(0, 0, 1), 1.5), False)
sketch10.addGeometry(Part.Circle(Vector(-125.8, -9, 0), Vector(0, 0, 1), 1.5), False)
sketch10.addGeometry(Part.Circle(Vector(-133.4, -16.6, 0), Vector(0, 0, 1), 1.5), False)
sketch10.addGeometry(Part.Circle(Vector(-141, -24.2, 0), Vector(0, 0, 1), 1.5), False)
sketch10.addGeometry(Part.Circle(Vector(-24.2, -9, 0), Vector(0, 0, 1), 1.5), False)
sketch10.addGeometry(Part.Circle(Vector(-16.6, -16.6, 0), Vector(0, 0, 1), 1.5), False)
sketch10.addGeometry(Part.Circle(Vector(-9, -24.2, 0), Vector(0, 0, 1), 1.5), False)
sketch10.addConstraint(Sketcher.Constraint("Equal", 0, 1))
sketch10.addConstraint(Sketcher.Constraint("Equal", 1, 2))
sketch10.addConstraint(Sketcher.Constraint("Equal", 2, 3))
sketch10.addConstraint(Sketcher.Constraint("Equal", 3, 4))
sketch10.addConstraint(Sketcher.Constraint("Equal", 4, 5))
sketch10.addConstraint(Sketcher.Constraint("Equal", 5, 6))
sketch10.addConstraint(Sketcher.Constraint("Equal", 6, 7))
sketch10.addConstraint(Sketcher.Constraint("Equal", 7, 8))
sketch10.addConstraint(Sketcher.Constraint("Horizontal", 0, 3, 1, 3))
sketch10.addConstraint(Sketcher.Constraint("Horizontal", 1, 3, 2, 3))
sketch10.addConstraint(Sketcher.Constraint("Horizontal", 3, 3, 6, 3))
sketch10.addConstraint(Sketcher.Constraint("Horizontal", 4, 3, 7, 3))
sketch10.addConstraint(Sketcher.Constraint("Horizontal", 5, 3, 8, 3))
sketch10.addConstraint(Sketcher.Constraint("Diameter", 0, 3.0))
sketch10.addConstraint(Sketcher.Constraint("DistanceY", 0, 3, -1, 1, 4.5))
sketch10.addConstraint(Sketcher.Constraint("DistanceX", 1, 3, -1, 1, 75.0))
sketch10.addConstraint(Sketcher.Constraint("DistanceX", 0, 3, 2, 3, 21.5))
sketch10.addConstraint(Sketcher.Constraint("DistanceX", 0, 3, -1, 1, 85.75))
sketch10.addConstraint(Sketcher.Constraint("DistanceY", 7, 3, -1, 1, 16.58))
sketch10.addConstraint(Sketcher.Constraint("DistanceX", 3, 3, -1, 1, 125.819))
sketch10.addConstraint(Sketcher.Constraint("DistanceX", 6, 3, -1, 1, 24.181))
sketch10.addConstraint(Sketcher.Constraint("DistanceY", 3, 3, -1, 1, 8.9785))
sketch10.addConstraint(Sketcher.Constraint("DistanceX", 4, 3, -1, 1, 133.4203))
sketch10.addConstraint(Sketcher.Constraint("DistanceX", 5, 3, -1, 1, 141.0218))
sketch10.addConstraint(Sketcher.Constraint("DistanceY", 5, 3, -1, 1, 24.1813))
sketch10.addConstraint(Sketcher.Constraint("DistanceX", 7, 3, -1, 1, 16.5796))
sketch10.addConstraint(Sketcher.Constraint("DistanceX", 8, 3, -1, 1, 8.9782))
pocket8 = doc.addObject("PartDesign::Pocket", "Pocket007")
body.addObject(pocket8)
pocket8.Profile = sketch10
pocket8.Type = "ThroughAll"
pocket8.Reversed = True

sketch11 = doc.addObject("Sketcher::SketchObject", "Sketch010")
body.addObject(sketch11)
sketch11.AttachmentSupport = (doc.XZ_Plane, [""])
sketch11.MapMode = "FlatFace"
sketch11.AttachmentOffset = App.Placement(Vector(0, 0, -2.5), App.Rotation())
sketch11.addGeometry(Part.LineSegment(Vector(-63.9, -45.1, 0), Vector(-63.9, -56.9, 0)), False)
sketch11.addGeometry(Part.LineSegment(Vector(-63.9, -56.9, 0), Vector(-86.1, -56.9, 0)), False)
sketch11.addGeometry(Part.LineSegment(Vector(-86.1, -56.9, 0), Vector(-86.1, -45.1, 0)), False)
sketch11.addGeometry(Part.LineSegment(Vector(-86.1, -45.1, 0), Vector(-63.9, -45.1, 0)), False)
sketch11.addGeometry(Part.Circle(Vector(-59.9, -51, 0), Vector(0, 0, 1), 1), False)
sketch11.addGeometry(Part.Circle(Vector(-90.1, -51, 0), Vector(0, 0, 1), 1), False)
sketch11.addConstraint(Sketcher.Constraint("Coincident", 0, 2, 1, 1))
sketch11.addConstraint(Sketcher.Constraint("Coincident", 1, 2, 2, 1))
sketch11.addConstraint(Sketcher.Constraint("Coincident", 2, 2, 3, 1))
sketch11.addConstraint(Sketcher.Constraint("Coincident", 3, 2, 0, 1))
sketch11.addConstraint(Sketcher.Constraint("Vertical", 0))
sketch11.addConstraint(Sketcher.Constraint("Horizontal", 1))
sketch11.addConstraint(Sketcher.Constraint("Vertical", 2))
sketch11.addConstraint(Sketcher.Constraint("Horizontal", 3))
sketch11.addConstraint(Sketcher.Constraint("Equal", 4, 5))
sketch11.addConstraint(Sketcher.Constraint("Horizontal", 4, 3, 5, 3))
sketch11.addConstraint(Sketcher.Constraint("Diameter", 4, 2.0))
sketch11.addConstraint(Sketcher.Constraint("DistanceX", 1, 2, 1, 1, 22.2))
sketch11.addConstraint(Sketcher.Constraint("DistanceY", 0, 2, 4, 3, 5.9))
sketch11.addConstraint(Sketcher.Constraint("DistanceY", 5, 3, 2, 2, 5.9))
sketch11.addConstraint(Sketcher.Constraint("DistanceY", 4, 3, -1, 1, 51.0))
sketch11.addConstraint(Sketcher.Constraint("DistanceX", 0, 2, 4, 3, 4.0))
sketch11.addConstraint(Sketcher.Constraint("DistanceX", 5, 3, 1, 2, 4.0))
sketch11.addConstraint(Sketcher.Constraint("DistanceX", 4, 3, -1, 1, 59.9015))
pocket9 = doc.addObject("PartDesign::Pocket", "Pocket008")
body.addObject(pocket9)
pocket9.Profile = sketch11
pocket9.Type = "ThroughAll"
pocket9.Reversed = True

doc.recompute()
